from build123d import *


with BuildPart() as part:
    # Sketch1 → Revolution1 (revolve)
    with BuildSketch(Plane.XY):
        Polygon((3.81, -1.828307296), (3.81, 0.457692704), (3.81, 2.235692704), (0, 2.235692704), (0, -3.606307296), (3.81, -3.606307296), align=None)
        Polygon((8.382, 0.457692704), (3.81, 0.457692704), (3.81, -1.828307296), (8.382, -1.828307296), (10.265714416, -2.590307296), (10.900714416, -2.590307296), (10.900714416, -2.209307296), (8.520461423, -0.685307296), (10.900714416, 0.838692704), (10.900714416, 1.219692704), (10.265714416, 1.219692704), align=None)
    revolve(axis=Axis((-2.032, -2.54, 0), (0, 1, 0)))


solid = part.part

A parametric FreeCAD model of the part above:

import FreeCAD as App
import Part
import Sketcher
from FreeCAD import Vector
Q = App.Units.Quantity

doc = App.newDocument("Part")
body = doc.addObject("PartDesign::Body", "Body")

# Sketch on XY plane
sketch1 = doc.addObject("Sketcher::SketchObject", "Sketch")
body.addObject(sketch1)
sketch1.AttachmentSupport = (doc.XY_Plane, [""])
sketch1.MapMode = "FlatFace"
sketch1.addGeometry([
    Part.LineSegment(Vector(3.81, 2.24, 0), Vector(0, 2.24, 0)),  # 0
    Part.LineSegment(Vector(0, 2.24, 0), Vector(0, -3.61, 0)),  # 1
    Part.LineSegment(Vector(0, -3.61, 0), Vector(3.81, -3.61, 0)),  # 2
    Part.LineSegment(Vector(3.81, -3.61, 0), Vector(3.81, -1.83, 0)),  # 3
    Part.LineSegment(Vector(3.81, -1.83, 0), Vector(8.38, -1.83, 0)),  # 4
    Part.LineSegment(Vector(8.38, -1.83, 0), Vector(10.27, -2.59, 0)),  # 5
    Part.LineSegment(Vector(10.27, -2.59, 0), Vector(10.9, -2.59, 0)),  # 6
    Part.LineSegment(Vector(10.9, -2.59, 0), Vector(10.9, -2.21, 0)),  # 7
    Part.LineSegment(Vector(10.9, -2.21, 0), Vector(8.52, -0.69, 0)),  # 8
    Part.LineSegment(Vector(8.52, -0.69, 0), Vector(10.9, 0.84, 0)),  # 9
    Part.LineSegment(Vector(10.9, 0.84, 0), Vector(10.9, 1.22, 0)),  # 10
    Part.LineSegment(Vector(10.9, 1.22, 0), Vector(10.27, 1.22, 0)),  # 11
    Part.LineSegment(Vector(10.27, 1.22, 0), Vector(8.38, 0.46, 0)),  # 12
    Part.LineSegment(Vector(8.38, 0.46, 0), Vector(3.81, 0.46, 0)),  # 13
    Part.LineSegment(Vector(3.81, 0.46, 0), Vector(3.81, 2.24, 0)),  # 14
], False)
sketch1.addGeometry(Part.LineSegment(Vector(-2.03, -3.61, 0), Vector(-2.03, 2.24, 0)), True)  # axis
sketch1.addConstraint([
    Sketcher.Constraint("Coincident", 0, 2, 1, 1),
    Sketcher.Constraint("Coincident", 1, 2, 2, 1),
    Sketcher.Constraint("Coincident", 2, 2, 3, 1),
    Sketcher.Constraint("Coincident", 3, 2, 4, 1),
    Sketcher.Constraint("Coincident", 4, 2, 5, 1),
    Sketcher.Constraint("Coincident", 5, 2, 6, 1),
    Sketcher.Constraint("Coincident", 6, 2, 7, 1),
    Sketcher.Constraint("Coincident", 7, 2, 8, 1),
    Sketcher.Constraint("Coincident", 8, 2, 9, 1),
    Sketcher.Constraint("Coincident", 9, 2, 10, 1),
    Sketcher.Constraint("Coincident", 10, 2, 11, 1),
    Sketcher.Constraint("Coincident", 11, 2, 12, 1),
    Sketcher.Constraint("Coincident", 12, 2, 13, 1),
    Sketcher.Constraint("Coincident", 13, 2, 14, 1),
    Sketcher.Constraint("Coincident", 14, 2, 0, 1),
    Sketcher.Constraint("Horizontal", 0),
    Sketcher.Constraint("Vertical", 1),
    Sketcher.Constraint("Horizontal", 2),
    Sketcher.Constraint("Vertical", 3),
    Sketcher.Constraint("Horizontal", 4),
    Sketcher.Constraint("Horizontal", 6),
    Sketcher.Constraint("Vertical", 7),
    Sketcher.Constraint("Vertical", 10),
    Sketcher.Constraint("Horizontal", 11),
    Sketcher.Constraint("Horizontal", 13),
    Sketcher.Constraint("Vertical", 14),
    Sketcher.Constraint("Vertical", 15),
    Sketcher.Constraint("PointOnObject", 0, 2, -2),
    Sketcher.Constraint("Horizontal", 2, 2, 15, 1),
    Sketcher.Constraint("Horizontal", 14, 2, 15, 2),
    Sketcher.Constraint("Vertical", 7, 2, 9, 2),
    Sketcher.Constraint("Vertical", 5, 2, 11, 2),
    Sketcher.Constraint("Vertical", 4, 2, 12, 2),
    Sketcher.Constraint("Vertical", 3, 2, 13, 2),
    Sketcher.Constraint("Equal", 7, 10),
    Sketcher.Constraint("Equal", 3, 14),
    Sketcher.Constraint("Equal", 8, 9),
    Sketcher.Constraint("Equal", 5, 12),
    Sketcher.Constraint("DistanceX", 0, 2, 0, 1, Q("0.15 in")),
    Sketcher.Constraint("DistanceX", 4, 1, 4, 2, Q("0.18 in")),
    Sketcher.Constraint("DistanceY", 1, 2, 1, 1, Q("0.23 in")),
    Sketcher.Constraint("DistanceY", 3, 1, 3, 2, Q("0.07 in")),
    Sketcher.Constraint("Distance", 5, Q("0.08 in")),
    Sketcher.Constraint("DistanceX", 6, 1, 6, 2, Q("0.025 in")),
    Sketcher.Constraint("DistanceY", 7, 1, 7, 2, Q("0.015 in")),
    Sketcher.Constraint("DistanceX", 15, 1, -1, 1, Q("0.08 in")),
    Sketcher.Constraint("DistanceY", 5, 2, 4, 2, Q("0.03 in")),
    Sketcher.Constraint("DistanceX", -1, 1, 8, 2, Q("8.520461 mm")),
    Sketcher.Constraint("DistanceY", -1, 1, 0, 2, Q("2.235693 mm")),
])
revolution = doc.addObject("PartDesign::Revolution", "Revolution")
body.addObject(revolution)
revolution.Profile = sketch1
revolution.ReferenceAxis = (sketch1, ["Axis0"])
revolution.Angle = 360

doc.recompute()
